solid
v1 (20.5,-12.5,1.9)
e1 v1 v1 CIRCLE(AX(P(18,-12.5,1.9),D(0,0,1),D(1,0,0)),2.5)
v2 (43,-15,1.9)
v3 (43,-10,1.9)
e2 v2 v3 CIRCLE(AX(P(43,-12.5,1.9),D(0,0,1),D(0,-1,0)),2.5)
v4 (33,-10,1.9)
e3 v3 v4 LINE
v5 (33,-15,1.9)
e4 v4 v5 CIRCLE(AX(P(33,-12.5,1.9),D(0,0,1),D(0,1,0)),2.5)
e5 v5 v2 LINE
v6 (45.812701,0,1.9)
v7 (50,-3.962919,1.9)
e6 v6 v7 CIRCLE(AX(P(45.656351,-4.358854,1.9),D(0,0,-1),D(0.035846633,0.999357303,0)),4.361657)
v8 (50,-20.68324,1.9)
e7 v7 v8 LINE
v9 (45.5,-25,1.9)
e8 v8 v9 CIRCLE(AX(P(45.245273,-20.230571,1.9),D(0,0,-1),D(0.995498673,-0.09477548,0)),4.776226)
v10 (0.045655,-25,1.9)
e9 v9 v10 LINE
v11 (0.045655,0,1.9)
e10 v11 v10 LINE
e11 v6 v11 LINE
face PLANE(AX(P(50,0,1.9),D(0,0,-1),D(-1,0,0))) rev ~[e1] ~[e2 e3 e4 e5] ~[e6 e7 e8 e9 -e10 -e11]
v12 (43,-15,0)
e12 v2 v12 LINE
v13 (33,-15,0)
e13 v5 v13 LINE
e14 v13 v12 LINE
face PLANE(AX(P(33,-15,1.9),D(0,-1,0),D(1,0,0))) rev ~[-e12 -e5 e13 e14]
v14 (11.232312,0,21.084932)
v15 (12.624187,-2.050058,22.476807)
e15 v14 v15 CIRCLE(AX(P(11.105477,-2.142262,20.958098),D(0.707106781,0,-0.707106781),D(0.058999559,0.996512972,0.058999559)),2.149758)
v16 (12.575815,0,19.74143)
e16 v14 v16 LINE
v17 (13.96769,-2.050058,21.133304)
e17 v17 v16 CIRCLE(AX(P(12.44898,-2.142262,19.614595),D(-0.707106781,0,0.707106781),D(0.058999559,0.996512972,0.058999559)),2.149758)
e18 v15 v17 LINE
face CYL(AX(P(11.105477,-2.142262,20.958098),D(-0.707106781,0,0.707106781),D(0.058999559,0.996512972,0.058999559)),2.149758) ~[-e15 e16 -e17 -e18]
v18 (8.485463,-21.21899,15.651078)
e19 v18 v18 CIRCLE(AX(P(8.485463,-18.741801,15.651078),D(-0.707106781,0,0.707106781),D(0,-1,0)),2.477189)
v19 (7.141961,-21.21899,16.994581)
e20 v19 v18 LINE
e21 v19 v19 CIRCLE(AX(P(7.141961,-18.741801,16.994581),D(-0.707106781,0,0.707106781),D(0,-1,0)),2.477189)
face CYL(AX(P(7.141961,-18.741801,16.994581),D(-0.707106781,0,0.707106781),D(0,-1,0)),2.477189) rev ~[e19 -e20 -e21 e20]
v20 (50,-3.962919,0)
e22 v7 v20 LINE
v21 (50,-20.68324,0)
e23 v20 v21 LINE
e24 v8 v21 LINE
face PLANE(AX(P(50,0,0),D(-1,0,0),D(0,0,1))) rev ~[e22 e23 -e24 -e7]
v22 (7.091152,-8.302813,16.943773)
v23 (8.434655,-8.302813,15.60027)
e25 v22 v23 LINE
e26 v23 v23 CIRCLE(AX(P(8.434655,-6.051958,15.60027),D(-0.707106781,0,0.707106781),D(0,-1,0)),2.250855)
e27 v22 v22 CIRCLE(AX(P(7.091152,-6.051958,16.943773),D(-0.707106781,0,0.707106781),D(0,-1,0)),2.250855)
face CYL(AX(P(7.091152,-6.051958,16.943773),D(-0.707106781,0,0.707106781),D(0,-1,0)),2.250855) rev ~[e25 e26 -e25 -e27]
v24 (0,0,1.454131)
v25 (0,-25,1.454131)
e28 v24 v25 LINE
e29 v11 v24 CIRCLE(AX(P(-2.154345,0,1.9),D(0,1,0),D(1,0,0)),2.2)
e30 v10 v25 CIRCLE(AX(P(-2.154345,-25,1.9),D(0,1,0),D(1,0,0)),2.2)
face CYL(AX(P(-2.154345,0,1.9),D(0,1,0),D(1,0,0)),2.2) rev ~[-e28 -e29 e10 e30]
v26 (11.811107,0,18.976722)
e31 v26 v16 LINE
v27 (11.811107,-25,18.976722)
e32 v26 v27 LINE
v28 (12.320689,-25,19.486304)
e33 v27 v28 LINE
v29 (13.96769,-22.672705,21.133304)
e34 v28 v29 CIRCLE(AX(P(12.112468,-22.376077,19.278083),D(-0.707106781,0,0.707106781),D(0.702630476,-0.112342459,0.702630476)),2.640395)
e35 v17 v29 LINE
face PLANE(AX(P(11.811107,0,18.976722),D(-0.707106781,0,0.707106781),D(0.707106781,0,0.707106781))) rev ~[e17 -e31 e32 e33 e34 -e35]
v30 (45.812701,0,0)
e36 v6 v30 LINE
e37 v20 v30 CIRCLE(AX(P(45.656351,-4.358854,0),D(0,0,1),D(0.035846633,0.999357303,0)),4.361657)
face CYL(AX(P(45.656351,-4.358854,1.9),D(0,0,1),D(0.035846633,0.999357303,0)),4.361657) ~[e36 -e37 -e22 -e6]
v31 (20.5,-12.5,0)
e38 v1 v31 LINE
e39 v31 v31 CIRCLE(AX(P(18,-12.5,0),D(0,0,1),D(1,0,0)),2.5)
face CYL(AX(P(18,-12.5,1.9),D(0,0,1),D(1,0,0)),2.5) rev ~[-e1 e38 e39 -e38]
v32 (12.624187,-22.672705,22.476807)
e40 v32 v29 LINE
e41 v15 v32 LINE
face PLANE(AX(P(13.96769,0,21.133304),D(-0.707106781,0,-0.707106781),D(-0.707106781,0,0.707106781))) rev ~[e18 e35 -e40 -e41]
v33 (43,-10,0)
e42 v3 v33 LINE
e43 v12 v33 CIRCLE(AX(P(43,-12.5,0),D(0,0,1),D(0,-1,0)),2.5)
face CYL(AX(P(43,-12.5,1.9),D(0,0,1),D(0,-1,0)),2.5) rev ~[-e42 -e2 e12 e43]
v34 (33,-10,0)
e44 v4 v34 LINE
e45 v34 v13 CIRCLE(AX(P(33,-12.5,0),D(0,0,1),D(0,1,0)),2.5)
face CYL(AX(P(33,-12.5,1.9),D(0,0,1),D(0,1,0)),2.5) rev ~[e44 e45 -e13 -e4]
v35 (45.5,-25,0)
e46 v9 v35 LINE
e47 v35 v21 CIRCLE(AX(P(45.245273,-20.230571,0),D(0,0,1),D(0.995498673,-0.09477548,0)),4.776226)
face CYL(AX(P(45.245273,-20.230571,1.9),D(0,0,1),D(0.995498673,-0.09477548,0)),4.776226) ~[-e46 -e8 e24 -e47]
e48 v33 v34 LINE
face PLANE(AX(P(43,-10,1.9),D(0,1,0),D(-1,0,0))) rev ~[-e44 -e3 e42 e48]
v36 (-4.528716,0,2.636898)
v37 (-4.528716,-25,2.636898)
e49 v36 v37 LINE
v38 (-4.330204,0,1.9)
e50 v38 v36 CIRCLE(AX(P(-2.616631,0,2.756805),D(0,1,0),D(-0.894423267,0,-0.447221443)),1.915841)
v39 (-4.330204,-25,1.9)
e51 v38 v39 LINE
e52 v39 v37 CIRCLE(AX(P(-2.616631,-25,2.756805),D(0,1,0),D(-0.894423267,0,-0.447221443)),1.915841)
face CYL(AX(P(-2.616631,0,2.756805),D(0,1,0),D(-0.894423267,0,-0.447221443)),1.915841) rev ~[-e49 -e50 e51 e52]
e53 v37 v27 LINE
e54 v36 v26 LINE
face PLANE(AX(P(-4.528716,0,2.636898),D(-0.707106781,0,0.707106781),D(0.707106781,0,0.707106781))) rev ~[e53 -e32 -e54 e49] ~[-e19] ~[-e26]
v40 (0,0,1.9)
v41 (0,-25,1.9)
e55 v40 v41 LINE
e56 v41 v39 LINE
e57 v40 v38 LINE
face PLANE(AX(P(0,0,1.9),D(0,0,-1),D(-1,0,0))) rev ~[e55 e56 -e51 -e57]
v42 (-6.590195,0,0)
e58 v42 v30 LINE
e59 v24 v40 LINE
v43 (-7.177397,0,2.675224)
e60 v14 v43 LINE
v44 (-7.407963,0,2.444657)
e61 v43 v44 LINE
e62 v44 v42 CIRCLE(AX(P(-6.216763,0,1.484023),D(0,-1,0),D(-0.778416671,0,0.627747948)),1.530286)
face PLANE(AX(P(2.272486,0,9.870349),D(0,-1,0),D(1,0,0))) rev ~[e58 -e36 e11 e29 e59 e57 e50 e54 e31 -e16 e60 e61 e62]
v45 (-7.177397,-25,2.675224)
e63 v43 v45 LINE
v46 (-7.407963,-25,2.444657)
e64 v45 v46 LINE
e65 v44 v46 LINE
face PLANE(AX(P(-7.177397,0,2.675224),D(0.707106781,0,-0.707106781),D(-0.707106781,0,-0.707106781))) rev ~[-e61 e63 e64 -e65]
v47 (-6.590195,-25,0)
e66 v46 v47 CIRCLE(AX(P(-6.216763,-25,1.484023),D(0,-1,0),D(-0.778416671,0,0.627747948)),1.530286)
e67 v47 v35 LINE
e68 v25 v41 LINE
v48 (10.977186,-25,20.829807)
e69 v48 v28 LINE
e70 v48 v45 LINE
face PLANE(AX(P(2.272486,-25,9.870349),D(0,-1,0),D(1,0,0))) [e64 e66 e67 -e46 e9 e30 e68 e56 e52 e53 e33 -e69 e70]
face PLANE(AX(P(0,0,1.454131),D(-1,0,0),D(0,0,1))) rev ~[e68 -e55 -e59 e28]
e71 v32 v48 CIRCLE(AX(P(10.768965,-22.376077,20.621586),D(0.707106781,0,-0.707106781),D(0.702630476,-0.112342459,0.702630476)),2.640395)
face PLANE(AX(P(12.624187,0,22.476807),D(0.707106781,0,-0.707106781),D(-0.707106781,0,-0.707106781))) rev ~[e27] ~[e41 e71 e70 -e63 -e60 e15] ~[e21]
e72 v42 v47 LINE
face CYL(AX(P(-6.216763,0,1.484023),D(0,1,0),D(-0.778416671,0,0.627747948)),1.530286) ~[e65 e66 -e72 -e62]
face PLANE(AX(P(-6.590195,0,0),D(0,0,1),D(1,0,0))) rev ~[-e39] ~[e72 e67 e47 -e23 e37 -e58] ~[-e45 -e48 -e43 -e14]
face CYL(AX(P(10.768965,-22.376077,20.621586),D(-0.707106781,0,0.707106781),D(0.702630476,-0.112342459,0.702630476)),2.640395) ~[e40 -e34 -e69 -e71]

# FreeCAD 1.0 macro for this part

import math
import FreeCAD as App
import Part
import Sketcher
Q = App.Units.Quantity

doc = App.newDocument("Part")
body = doc.addObject("PartDesign::Body", "Body")

# Sketch on XZ plane
sketch1 = body.newObject("Sketcher::SketchObject", "Sketch")
sketch1.AttachmentSupport = (doc.getObject("XZ_Plane"), [""])
sketch1.MapMode = "FlatFace"
sketch1.addGeometry([
    Part.LineSegment(App.Vector(-6.590195, 0, 0), App.Vector(50, 0, 0)),  # 0
    Part.LineSegment(App.Vector(50, 0, 0), App.Vector(50, 1.9, 0)),  # 1
    Part.LineSegment(App.Vector(50, 1.9, 0), App.Vector(0.045655, 1.9, 0)),  # 2
    Part.ArcOfCircle(Part.Circle(App.Vector(-2.154345, 1.9, 0), App.Vector(0, 0, 1), 2.2), math.radians(-11.692997), math.radians(0)),  # 3
    Part.LineSegment(App.Vector(0, 1.454131, 0), App.Vector(0, 1.9, 0)),  # 4
    Part.LineSegment(App.Vector(0, 1.9, 0), App.Vector(-4.330204, 1.9, 0)),  # 5
    Part.ArcOfCircle(Part.Circle(App.Vector(-2.616631, 2.756805, 0), App.Vector(0, 0, 1), 1.915841), math.radians(-176.411678), math.radians(-153.434446)),  # 6
    Part.LineSegment(App.Vector(-4.528716, 2.636898, 0), App.Vector(11.811107, 18.976722, 0)),  # 7
    Part.LineSegment(App.Vector(11.811107, 18.976722, 0), App.Vector(13.96769, 21.133304, 0)),  # 8
    Part.LineSegment(App.Vector(13.96769, 21.133304, 0), App.Vector(12.624187, 22.476807, 0)),  # 9
    Part.LineSegment(App.Vector(12.624187, 22.476807, 0), App.Vector(-7.177397, 2.675224, 0)),  # 10
    Part.LineSegment(App.Vector(-7.177397, 2.675224, 0), App.Vector(-7.407963, 2.444657, 0)),  # 11
    Part.ArcOfCircle(Part.Circle(App.Vector(-6.216763, 1.484023, 0), App.Vector(0, 0, 1), 1.530286), math.radians(141.115835), math.radians(255.875624)),  # 12
], False)
sketch1.addConstraint([
    Sketcher.Constraint("Coincident", 0, 2, 1, 1),
    Sketcher.Constraint("Coincident", 1, 2, 2, 1),
    Sketcher.Constraint("Coincident", 2, 2, 3, 2),
    Sketcher.Constraint("Coincident", 3, 1, 4, 1),
    Sketcher.Constraint("Coincident", 4, 2, 5, 1),
    Sketcher.Constraint("Coincident", 5, 2, 6, 2),
    Sketcher.Constraint("Coincident", 6, 1, 7, 1),
    Sketcher.Constraint("Coincident", 7, 2, 8, 1),
    Sketcher.Constraint("Coincident", 8, 2, 9, 1),
    Sketcher.Constraint("Coincident", 9, 2, 10, 1),
    Sketcher.Constraint("Coincident", 10, 2, 11, 1),
    Sketcher.Constraint("Coincident", 11, 2, 12, 1),
    Sketcher.Constraint("Coincident", 12, 2, 0, 1),
    Sketcher.Constraint("Horizontal", 0),
    Sketcher.Constraint("Vertical", 1),
    Sketcher.Constraint("Horizontal", 2),
    Sketcher.Constraint("Vertical", 4),
    Sketcher.Constraint("Horizontal", 5),
    Sketcher.Constraint("PointOnObject", 0, 2, -1),
    Sketcher.Constraint("PointOnObject", 3, 1, -2),
    Sketcher.Constraint("Parallel", 7, 8),
    Sketcher.Constraint("Perpendicular", 8, 9),
    Sketcher.Constraint("Perpendicular", 9, 10),
    Sketcher.Constraint("Parallel", 10, 11),
    Sketcher.Constraint("Horizontal", 3, 3, 1, 2),
    Sketcher.Constraint("Horizontal", 2, 2, 4, 2),
    Sketcher.Constraint("Radius", 3, Q("2.2 mm")),
    Sketcher.Constraint("Angle", 7, Q("45 deg")),
    Sketcher.Constraint("DistanceY", 1, 1, 1, 2, Q("1.9 mm")),
    Sketcher.Constraint("DistanceX", -1, 1, 0, 2, Q("50 mm")),
    Sketcher.Constraint("Distance", 9, Q("1.9 mm")),
    Sketcher.Constraint("Radius", 6, Q("1.915841 mm")),
    Sketcher.Constraint("Distance", 7, Q("23.108 mm")),
    Sketcher.Constraint("Radius", 12, Q("1.530286 mm")),
    Sketcher.Constraint("DistanceY", 4, 1, 4, 2, Q("0.445869 mm")),
    Sketcher.Constraint("DistanceY", -1, 1, 6, 1, Q("2.636898 mm")),
    Sketcher.Constraint("DistanceY", 6, 3, 8, 2, Q("18.376499 mm")),
    Sketcher.Constraint("DistanceY", 12, 3, 10, 2, Q("1.1912 mm")),
    Sketcher.Constraint("DistanceX", 11, 2, 12, 3, Q("1.1912 mm")),
    Sketcher.Constraint("DistanceX", 10, 2, 12, 2, Q("0.587202 mm")),
    Sketcher.Constraint("Distance", 8, Q("3.049869 mm")),
    Sketcher.Constraint("DistanceX", 0, 1, 0, 2, Q("56.590195 mm")),
])
pad1 = body.newObject("PartDesign::Pad", "Pad")
pad1.Profile = sketch1
pad1.Length = 25

# Sketch on an angled plane
sketch2 = body.newObject("Sketcher::SketchObject", "Sketch001")
sketch2.Placement = App.Placement(App.Vector(-4.92631, 0, 4.92631), App.Rotation(App.Vector(0, -1, 0), App.Vector(0.707106781, 0, 0.707106781), App.Vector(-0.707106781, 0, 0.707106781), "ZXY"))
sketch2.addGeometry([
    Part.Circle(App.Vector(18.741801, 17.067112, 0), App.Vector(0, 0, 1), 2.477189),
    Part.Circle(App.Vector(6.051958, 16.995259, 0), App.Vector(0, 0, 1), 2.250855),
], False)
sketch2.addConstraint([
    Sketcher.Constraint("Diameter", 0, Q("4.954378 mm")),
    Sketcher.Constraint("Diameter", 1, Q("4.50171 mm")),
    Sketcher.Constraint("DistanceX", -1, 1, 0, 3, Q("18.741801 mm")),
    Sketcher.Constraint("DistanceY", -1, 1, 1, 3, Q("16.995259 mm")),
    Sketcher.Constraint("DistanceY", -1, 1, 0, 3, Q("17.067112 mm")),
    Sketcher.Constraint("DistanceX", -1, 1, 1, 3, Q("6.051958 mm")),
])
pocket1 = body.newObject("PartDesign::Pocket", "Pocket")
pocket1.Profile = sketch2
pocket1.Length = 5

# Sketch on an angled plane
sketch3 = body.newObject("Sketcher::SketchObject", "Sketch002")
sketch3.Placement = App.Placement(App.Vector(-4.92631, 0, 4.92631), App.Rotation(App.Vector(0, -1, 0), App.Vector(0.707106781, 0, 0.707106781), App.Vector(-0.707106781, 0, 0.707106781), "ZXY"))
sketch3.addGeometry([
    Part.LineSegment(App.Vector(0, 24.820151, 0), App.Vector(0, 22.851743, 0)),  # 0
    Part.ArcOfCircle(Part.Circle(App.Vector(2.142262, 22.672371, 0), App.Vector(0, 0, 1), 2.149758), math.radians(92.458197), math.radians(175.213792)),  # 1
    Part.LineSegment(App.Vector(2.050058, 24.820151, 0), App.Vector(0, 24.820151, 0)),  # 2
    Part.ArcOfCircle(Part.Circle(App.Vector(22.376077, 22.196471, 0), App.Vector(0, 0, 1), 2.640395), math.radians(6.403208), math.radians(83.549634)),  # 3
    Part.LineSegment(App.Vector(25, 22.49094, 0), App.Vector(25, 24.820151, 0)),  # 4
    Part.LineSegment(App.Vector(25, 24.820151, 0), App.Vector(22.672705, 24.820151, 0)),  # 5
], False)
sketch3.addConstraint([
    Sketcher.Constraint("Coincident", 0, 2, 1, 2),
    Sketcher.Constraint("Coincident", 1, 1, 2, 1),
    Sketcher.Constraint("Coincident", 2, 2, 0, 1),
    Sketcher.Constraint("Coincident", 3, 1, 4, 1),
    Sketcher.Constraint("Coincident", 4, 2, 5, 1),
    Sketcher.Constraint("Coincident", 5, 2, 3, 2),
    Sketcher.Constraint("Vertical", 0),
    Sketcher.Constraint("Horizontal", 2),
    Sketcher.Constraint("Vertical", 4),
    Sketcher.Constraint("Horizontal", 5),
    Sketcher.Constraint("PointOnObject", 0, 2, -2),
    Sketcher.Constraint("Horizontal", 2, 2, 4, 2),
    Sketcher.Constraint("DistanceX", -1, 1, 3, 1, Q("25 mm")),
    Sketcher.Constraint("Radius", 1, Q("2.149758 mm")),
    Sketcher.Constraint("Radius", 3, Q("2.640395 mm")),
    Sketcher.Constraint("DistanceY", 0, 2, 0, 1, Q("1.968408 mm")),
    Sketcher.Constraint("DistanceY", 4, 1, 4, 2, Q("2.329211 mm")),
    Sketcher.Constraint("DistanceY", 3, 3, 1, 3, Q("0.4759 mm")),
    Sketcher.Constraint("DistanceX", 2, 2, 2, 1, Q("2.050058 mm")),
    Sketcher.Constraint("DistanceY", -1, 1, 1, 3, Q("22.672371 mm")),
])
pocket2 = body.newObject("PartDesign::Pocket", "Pocket001")
pocket2.Profile = sketch3
pocket2.Length = 6

# Sketch on XY plane
sketch4 = body.newObject("Sketcher::SketchObject", "Sketch003")
sketch4.AttachmentSupport = (doc.getObject("XY_Plane"), [""])
sketch4.MapMode = "FlatFace"
sketch4.AttachmentOffset = App.Placement(App.Vector(0, 0, 1.9), App.Rotation())
sketch4.addGeometry([
    Part.ArcOfCircle(Part.Circle(App.Vector(45.656351, -4.358854, 0), App.Vector(0, 0, 1), 4.361657), math.radians(5.208264), math.radians(87.945699)),  # 0
    Part.LineSegment(App.Vector(50, -3.962919, 0), App.Vector(50, 0, 0)),  # 1
    Part.LineSegment(App.Vector(50, 0, 0), App.Vector(45.812701, 0, 0)),  # 2
    Part.ArcOfCircle(Part.Circle(App.Vector(45.245273, -20.230571, 0), App.Vector(0, 0, 1), 4.776226), math.radians(-86.942835), math.radians(-5.438397)),  # 3
    Part.LineSegment(App.Vector(45.5, -25, 0), App.Vector(50, -25, 0)),  # 4
    Part.LineSegment(App.Vector(50, -25, 0), App.Vector(50, -20.68324, 0)),  # 5
    Part.LineSegment(App.Vector(33, -15, 0), App.Vector(43, -15, 0)),  # 6
    Part.ArcOfCircle(Part.Circle(App.Vector(43, -12.5, 0), App.Vector(0, 0, 1), 2.5), math.radians(-90), math.radians(90)),  # 7
    Part.LineSegment(App.Vector(43, -10, 0), App.Vector(33, -10, 0)),  # 8
    Part.ArcOfCircle(Part.Circle(App.Vector(33, -12.5, 0), App.Vector(0, 0, 1), 2.5), math.radians(90), math.radians(270)),  # 9
    Part.Circle(App.Vector(18, -12.5, 0), App.Vector(0, 0, 1), 2.5),  # 10
], False)
sketch4.addConstraint([
    Sketcher.Constraint("Coincident", 0, 1, 1, 1),
    Sketcher.Constraint("Coincident", 1, 2, 2, 1),
    Sketcher.Constraint("Coincident", 2, 2, 0, 2),
    Sketcher.Constraint("Coincident", 3, 1, 4, 1),
    Sketcher.Constraint("Coincident", 4, 2, 5, 1),
    Sketcher.Constraint("Coincident", 5, 2, 3, 2),
    Sketcher.Constraint("Tangent", 6, 2, 7, 1),
    Sketcher.Constraint("Tangent", 7, 2, 8, 1),
    Sketcher.Constraint("Tangent", 8, 2, 9, 1),
    Sketcher.Constraint("Tangent", 9, 2, 6, 1),
    Sketcher.Constraint("Vertical", 1),
    Sketcher.Constraint("Horizontal", 2),
    Sketcher.Constraint("Horizontal", 4),
    Sketcher.Constraint("Vertical", 5),
    Sketcher.Constraint("Horizontal", 6),
    Sketcher.Constraint("Horizontal", 8),
    Sketcher.Constraint("Equal", 9, 10),
    Sketcher.Constraint("PointOnObject", 1, 2, -1),
    Sketcher.Constraint("Horizontal", 9, 3, 10, 3),
    Sketcher.Constraint("Vertical", 1, 2, 4, 2),
    Sketcher.Constraint("Diameter", 10, Q("5 mm")),
    Sketcher.Constraint("DistanceX", 6, 1, 6, 2, Q("10 mm")),
    Sketcher.Constraint("DistanceX", 4, 1, 4, 2, Q("4.5 mm")),
    Sketcher.Constraint("DistanceX", -1, 1, 7, 3, Q("43 mm")),
    Sketcher.Constraint("DistanceX", -1, 1, 10, 3, Q("18 mm")),
    Sketcher.Constraint("DistanceX", -1, 1, 0, 1, Q("50 mm")),
    Sketcher.Constraint("DistanceY", 3, 1, -1, 1, Q("25 mm")),
    Sketcher.Constraint("DistanceY", 6, 2, -1, 1, Q("15 mm")),
    Sketcher.Constraint("DistanceX", 2, 2, 2, 1, Q("4.187299 mm")),
    Sketcher.Constraint("Radius", 0, Q("4.361657 mm")),
    Sketcher.Constraint("Radius", 3, Q("4.776226 mm")),
    Sketcher.Constraint("DistanceY", 1, 1, 1, 2, Q("3.962919 mm")),
    Sketcher.Constraint("DistanceY", 5, 1, 5, 2, Q("4.31676 mm")),
])
pocket3 = body.newObject("PartDesign::Pocket", "Pocket002")
pocket3.Profile = sketch4
pocket3.Length = 25

doc.recompute()
